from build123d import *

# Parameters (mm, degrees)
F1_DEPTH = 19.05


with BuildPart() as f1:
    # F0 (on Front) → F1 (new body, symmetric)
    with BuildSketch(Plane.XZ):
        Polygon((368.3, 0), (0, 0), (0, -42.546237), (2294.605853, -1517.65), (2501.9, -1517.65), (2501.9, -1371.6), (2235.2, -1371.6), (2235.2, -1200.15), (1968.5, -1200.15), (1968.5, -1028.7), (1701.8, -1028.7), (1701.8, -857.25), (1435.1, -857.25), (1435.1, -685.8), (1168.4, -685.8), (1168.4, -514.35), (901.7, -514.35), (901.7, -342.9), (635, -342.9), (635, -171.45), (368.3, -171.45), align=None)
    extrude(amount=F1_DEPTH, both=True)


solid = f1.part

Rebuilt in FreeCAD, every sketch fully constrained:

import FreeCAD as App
import Part
import Sketcher
from FreeCAD import Vector
Q = App.Units.Quantity


def add_polygon(sketch, points):
    """Adds a closed chain of lines whose ends are joined by coincident constraints."""
    first, n = sketch.GeometryCount, len(points)
    for a, b in zip(points, points[1:] + points[:1]):
        sketch.addGeometry(Part.LineSegment(App.Vector(*a, 0), App.Vector(*b, 0)), False)
    for i in range(n):
        sketch.addConstraint(Sketcher.Constraint("Coincident", first + i, 2, first + (i + 1) % n, 1))

doc = App.newDocument("Part")
body = doc.addObject("PartDesign::Body", "Body")

# Sketch on XZ plane
sketch1 = body.newObject("Sketcher::SketchObject", "Sketch")
sketch1.AttachmentSupport = (doc.getObject("XZ_Plane"), [""])
sketch1.MapMode = "FlatFace"
add_polygon(sketch1, [(368, 0), (0, 0), (0, -43), (2295, -1518), (2502, -1518), (2502, -1372), (2235, -1372), (2235, -1200), (1968, -1200), (1968, -1029), (1702, -1029), (1702, -857), (1435, -857), (1435, -686), (1168, -686), (1168, -514), (902, -514), (902, -343), (635, -343), (635, -171), (368, -171)])  # lines 0-20
sketch1.addConstraint(Sketcher.Constraint("Horizontal", 0))
sketch1.addConstraint(Sketcher.Constraint("Vertical", 1))
sketch1.addConstraint(Sketcher.Constraint("Horizontal", 3))
sketch1.addConstraint(Sketcher.Constraint("Vertical", 4))
sketch1.addConstraint(Sketcher.Constraint("Horizontal", 5))
sketch1.addConstraint(Sketcher.Constraint("Vertical", 6))
sketch1.addConstraint(Sketcher.Constraint("Horizontal", 7))
sketch1.addConstraint(Sketcher.Constraint("Vertical", 8))
sketch1.addConstraint(Sketcher.Constraint("Horizontal", 9))
sketch1.addConstraint(Sketcher.Constraint("Vertical", 10))
sketch1.addConstraint(Sketcher.Constraint("Horizontal", 11))
sketch1.addConstraint(Sketcher.Constraint("Vertical", 12))
sketch1.addConstraint(Sketcher.Constraint("Horizontal", 13))
sketch1.addConstraint(Sketcher.Constraint("Vertical", 14))
sketch1.addConstraint(Sketcher.Constraint("Horizontal", 15))
sketch1.addConstraint(Sketcher.Constraint("Vertical", 16))
sketch1.addConstraint(Sketcher.Constraint("Horizontal", 17))
sketch1.addConstraint(Sketcher.Constraint("Vertical", 18))
sketch1.addConstraint(Sketcher.Constraint("Horizontal", 19))
sketch1.addConstraint(Sketcher.Constraint("Vertical", 20))
sketch1.addConstraint(Sketcher.Constraint("Coincident", 0, 2, -1, 1))
sketch1.addConstraint(Sketcher.Constraint("Equal", 5, 7))
sketch1.addConstraint(Sketcher.Constraint("Equal", 7, 9))
sketch1.addConstraint(Sketcher.Constraint("Equal", 9, 11))
sketch1.addConstraint(Sketcher.Constraint("Equal", 11, 13))
sketch1.addConstraint(Sketcher.Constraint("Equal", 13, 15))
sketch1.addConstraint(Sketcher.Constraint("Equal", 15, 17))
sketch1.addConstraint(Sketcher.Constraint("Equal", 17, 19))
sketch1.addConstraint(Sketcher.Constraint("Equal", 6, 8))
sketch1.addConstraint(Sketcher.Constraint("Equal", 8, 10))
sketch1.addConstraint(Sketcher.Constraint("Equal", 10, 12))
sketch1.addConstraint(Sketcher.Constraint("Equal", 12, 14))
sketch1.addConstraint(Sketcher.Constraint("Equal", 14, 16))
sketch1.addConstraint(Sketcher.Constraint("Equal", 16, 18))
sketch1.addConstraint(Sketcher.Constraint("Equal", 18, 20))
sketch1.addConstraint(Sketcher.Constraint("DistanceX", 0, 2, 0, 1, Q("14.5 in")))
sketch1.addConstraint(Sketcher.Constraint("DistanceX", 5, 2, 5, 1, Q("10.5 in")))
sketch1.addConstraint(Sketcher.Constraint("DistanceY", 4, 2, -1, 1, Q("54 in")))
sketch1.addConstraint(Sketcher.Constraint("DistanceY", 4, 1, 4, 2, Q("5.75 in")))
sketch1.addConstraint(Sketcher.Constraint("Distance", 2, Q("2727.846611 mm")))
sketch1.addConstraint(Sketcher.Constraint("DistanceX", 3, 1, 3, 2, Q("207.294147 mm")))
pad1 = body.newObject("PartDesign::Pad", "Pad")
pad1.Profile = sketch1
pad1.Length = Q("1.5 in")
pad1.Midplane = True

doc.recompute()
